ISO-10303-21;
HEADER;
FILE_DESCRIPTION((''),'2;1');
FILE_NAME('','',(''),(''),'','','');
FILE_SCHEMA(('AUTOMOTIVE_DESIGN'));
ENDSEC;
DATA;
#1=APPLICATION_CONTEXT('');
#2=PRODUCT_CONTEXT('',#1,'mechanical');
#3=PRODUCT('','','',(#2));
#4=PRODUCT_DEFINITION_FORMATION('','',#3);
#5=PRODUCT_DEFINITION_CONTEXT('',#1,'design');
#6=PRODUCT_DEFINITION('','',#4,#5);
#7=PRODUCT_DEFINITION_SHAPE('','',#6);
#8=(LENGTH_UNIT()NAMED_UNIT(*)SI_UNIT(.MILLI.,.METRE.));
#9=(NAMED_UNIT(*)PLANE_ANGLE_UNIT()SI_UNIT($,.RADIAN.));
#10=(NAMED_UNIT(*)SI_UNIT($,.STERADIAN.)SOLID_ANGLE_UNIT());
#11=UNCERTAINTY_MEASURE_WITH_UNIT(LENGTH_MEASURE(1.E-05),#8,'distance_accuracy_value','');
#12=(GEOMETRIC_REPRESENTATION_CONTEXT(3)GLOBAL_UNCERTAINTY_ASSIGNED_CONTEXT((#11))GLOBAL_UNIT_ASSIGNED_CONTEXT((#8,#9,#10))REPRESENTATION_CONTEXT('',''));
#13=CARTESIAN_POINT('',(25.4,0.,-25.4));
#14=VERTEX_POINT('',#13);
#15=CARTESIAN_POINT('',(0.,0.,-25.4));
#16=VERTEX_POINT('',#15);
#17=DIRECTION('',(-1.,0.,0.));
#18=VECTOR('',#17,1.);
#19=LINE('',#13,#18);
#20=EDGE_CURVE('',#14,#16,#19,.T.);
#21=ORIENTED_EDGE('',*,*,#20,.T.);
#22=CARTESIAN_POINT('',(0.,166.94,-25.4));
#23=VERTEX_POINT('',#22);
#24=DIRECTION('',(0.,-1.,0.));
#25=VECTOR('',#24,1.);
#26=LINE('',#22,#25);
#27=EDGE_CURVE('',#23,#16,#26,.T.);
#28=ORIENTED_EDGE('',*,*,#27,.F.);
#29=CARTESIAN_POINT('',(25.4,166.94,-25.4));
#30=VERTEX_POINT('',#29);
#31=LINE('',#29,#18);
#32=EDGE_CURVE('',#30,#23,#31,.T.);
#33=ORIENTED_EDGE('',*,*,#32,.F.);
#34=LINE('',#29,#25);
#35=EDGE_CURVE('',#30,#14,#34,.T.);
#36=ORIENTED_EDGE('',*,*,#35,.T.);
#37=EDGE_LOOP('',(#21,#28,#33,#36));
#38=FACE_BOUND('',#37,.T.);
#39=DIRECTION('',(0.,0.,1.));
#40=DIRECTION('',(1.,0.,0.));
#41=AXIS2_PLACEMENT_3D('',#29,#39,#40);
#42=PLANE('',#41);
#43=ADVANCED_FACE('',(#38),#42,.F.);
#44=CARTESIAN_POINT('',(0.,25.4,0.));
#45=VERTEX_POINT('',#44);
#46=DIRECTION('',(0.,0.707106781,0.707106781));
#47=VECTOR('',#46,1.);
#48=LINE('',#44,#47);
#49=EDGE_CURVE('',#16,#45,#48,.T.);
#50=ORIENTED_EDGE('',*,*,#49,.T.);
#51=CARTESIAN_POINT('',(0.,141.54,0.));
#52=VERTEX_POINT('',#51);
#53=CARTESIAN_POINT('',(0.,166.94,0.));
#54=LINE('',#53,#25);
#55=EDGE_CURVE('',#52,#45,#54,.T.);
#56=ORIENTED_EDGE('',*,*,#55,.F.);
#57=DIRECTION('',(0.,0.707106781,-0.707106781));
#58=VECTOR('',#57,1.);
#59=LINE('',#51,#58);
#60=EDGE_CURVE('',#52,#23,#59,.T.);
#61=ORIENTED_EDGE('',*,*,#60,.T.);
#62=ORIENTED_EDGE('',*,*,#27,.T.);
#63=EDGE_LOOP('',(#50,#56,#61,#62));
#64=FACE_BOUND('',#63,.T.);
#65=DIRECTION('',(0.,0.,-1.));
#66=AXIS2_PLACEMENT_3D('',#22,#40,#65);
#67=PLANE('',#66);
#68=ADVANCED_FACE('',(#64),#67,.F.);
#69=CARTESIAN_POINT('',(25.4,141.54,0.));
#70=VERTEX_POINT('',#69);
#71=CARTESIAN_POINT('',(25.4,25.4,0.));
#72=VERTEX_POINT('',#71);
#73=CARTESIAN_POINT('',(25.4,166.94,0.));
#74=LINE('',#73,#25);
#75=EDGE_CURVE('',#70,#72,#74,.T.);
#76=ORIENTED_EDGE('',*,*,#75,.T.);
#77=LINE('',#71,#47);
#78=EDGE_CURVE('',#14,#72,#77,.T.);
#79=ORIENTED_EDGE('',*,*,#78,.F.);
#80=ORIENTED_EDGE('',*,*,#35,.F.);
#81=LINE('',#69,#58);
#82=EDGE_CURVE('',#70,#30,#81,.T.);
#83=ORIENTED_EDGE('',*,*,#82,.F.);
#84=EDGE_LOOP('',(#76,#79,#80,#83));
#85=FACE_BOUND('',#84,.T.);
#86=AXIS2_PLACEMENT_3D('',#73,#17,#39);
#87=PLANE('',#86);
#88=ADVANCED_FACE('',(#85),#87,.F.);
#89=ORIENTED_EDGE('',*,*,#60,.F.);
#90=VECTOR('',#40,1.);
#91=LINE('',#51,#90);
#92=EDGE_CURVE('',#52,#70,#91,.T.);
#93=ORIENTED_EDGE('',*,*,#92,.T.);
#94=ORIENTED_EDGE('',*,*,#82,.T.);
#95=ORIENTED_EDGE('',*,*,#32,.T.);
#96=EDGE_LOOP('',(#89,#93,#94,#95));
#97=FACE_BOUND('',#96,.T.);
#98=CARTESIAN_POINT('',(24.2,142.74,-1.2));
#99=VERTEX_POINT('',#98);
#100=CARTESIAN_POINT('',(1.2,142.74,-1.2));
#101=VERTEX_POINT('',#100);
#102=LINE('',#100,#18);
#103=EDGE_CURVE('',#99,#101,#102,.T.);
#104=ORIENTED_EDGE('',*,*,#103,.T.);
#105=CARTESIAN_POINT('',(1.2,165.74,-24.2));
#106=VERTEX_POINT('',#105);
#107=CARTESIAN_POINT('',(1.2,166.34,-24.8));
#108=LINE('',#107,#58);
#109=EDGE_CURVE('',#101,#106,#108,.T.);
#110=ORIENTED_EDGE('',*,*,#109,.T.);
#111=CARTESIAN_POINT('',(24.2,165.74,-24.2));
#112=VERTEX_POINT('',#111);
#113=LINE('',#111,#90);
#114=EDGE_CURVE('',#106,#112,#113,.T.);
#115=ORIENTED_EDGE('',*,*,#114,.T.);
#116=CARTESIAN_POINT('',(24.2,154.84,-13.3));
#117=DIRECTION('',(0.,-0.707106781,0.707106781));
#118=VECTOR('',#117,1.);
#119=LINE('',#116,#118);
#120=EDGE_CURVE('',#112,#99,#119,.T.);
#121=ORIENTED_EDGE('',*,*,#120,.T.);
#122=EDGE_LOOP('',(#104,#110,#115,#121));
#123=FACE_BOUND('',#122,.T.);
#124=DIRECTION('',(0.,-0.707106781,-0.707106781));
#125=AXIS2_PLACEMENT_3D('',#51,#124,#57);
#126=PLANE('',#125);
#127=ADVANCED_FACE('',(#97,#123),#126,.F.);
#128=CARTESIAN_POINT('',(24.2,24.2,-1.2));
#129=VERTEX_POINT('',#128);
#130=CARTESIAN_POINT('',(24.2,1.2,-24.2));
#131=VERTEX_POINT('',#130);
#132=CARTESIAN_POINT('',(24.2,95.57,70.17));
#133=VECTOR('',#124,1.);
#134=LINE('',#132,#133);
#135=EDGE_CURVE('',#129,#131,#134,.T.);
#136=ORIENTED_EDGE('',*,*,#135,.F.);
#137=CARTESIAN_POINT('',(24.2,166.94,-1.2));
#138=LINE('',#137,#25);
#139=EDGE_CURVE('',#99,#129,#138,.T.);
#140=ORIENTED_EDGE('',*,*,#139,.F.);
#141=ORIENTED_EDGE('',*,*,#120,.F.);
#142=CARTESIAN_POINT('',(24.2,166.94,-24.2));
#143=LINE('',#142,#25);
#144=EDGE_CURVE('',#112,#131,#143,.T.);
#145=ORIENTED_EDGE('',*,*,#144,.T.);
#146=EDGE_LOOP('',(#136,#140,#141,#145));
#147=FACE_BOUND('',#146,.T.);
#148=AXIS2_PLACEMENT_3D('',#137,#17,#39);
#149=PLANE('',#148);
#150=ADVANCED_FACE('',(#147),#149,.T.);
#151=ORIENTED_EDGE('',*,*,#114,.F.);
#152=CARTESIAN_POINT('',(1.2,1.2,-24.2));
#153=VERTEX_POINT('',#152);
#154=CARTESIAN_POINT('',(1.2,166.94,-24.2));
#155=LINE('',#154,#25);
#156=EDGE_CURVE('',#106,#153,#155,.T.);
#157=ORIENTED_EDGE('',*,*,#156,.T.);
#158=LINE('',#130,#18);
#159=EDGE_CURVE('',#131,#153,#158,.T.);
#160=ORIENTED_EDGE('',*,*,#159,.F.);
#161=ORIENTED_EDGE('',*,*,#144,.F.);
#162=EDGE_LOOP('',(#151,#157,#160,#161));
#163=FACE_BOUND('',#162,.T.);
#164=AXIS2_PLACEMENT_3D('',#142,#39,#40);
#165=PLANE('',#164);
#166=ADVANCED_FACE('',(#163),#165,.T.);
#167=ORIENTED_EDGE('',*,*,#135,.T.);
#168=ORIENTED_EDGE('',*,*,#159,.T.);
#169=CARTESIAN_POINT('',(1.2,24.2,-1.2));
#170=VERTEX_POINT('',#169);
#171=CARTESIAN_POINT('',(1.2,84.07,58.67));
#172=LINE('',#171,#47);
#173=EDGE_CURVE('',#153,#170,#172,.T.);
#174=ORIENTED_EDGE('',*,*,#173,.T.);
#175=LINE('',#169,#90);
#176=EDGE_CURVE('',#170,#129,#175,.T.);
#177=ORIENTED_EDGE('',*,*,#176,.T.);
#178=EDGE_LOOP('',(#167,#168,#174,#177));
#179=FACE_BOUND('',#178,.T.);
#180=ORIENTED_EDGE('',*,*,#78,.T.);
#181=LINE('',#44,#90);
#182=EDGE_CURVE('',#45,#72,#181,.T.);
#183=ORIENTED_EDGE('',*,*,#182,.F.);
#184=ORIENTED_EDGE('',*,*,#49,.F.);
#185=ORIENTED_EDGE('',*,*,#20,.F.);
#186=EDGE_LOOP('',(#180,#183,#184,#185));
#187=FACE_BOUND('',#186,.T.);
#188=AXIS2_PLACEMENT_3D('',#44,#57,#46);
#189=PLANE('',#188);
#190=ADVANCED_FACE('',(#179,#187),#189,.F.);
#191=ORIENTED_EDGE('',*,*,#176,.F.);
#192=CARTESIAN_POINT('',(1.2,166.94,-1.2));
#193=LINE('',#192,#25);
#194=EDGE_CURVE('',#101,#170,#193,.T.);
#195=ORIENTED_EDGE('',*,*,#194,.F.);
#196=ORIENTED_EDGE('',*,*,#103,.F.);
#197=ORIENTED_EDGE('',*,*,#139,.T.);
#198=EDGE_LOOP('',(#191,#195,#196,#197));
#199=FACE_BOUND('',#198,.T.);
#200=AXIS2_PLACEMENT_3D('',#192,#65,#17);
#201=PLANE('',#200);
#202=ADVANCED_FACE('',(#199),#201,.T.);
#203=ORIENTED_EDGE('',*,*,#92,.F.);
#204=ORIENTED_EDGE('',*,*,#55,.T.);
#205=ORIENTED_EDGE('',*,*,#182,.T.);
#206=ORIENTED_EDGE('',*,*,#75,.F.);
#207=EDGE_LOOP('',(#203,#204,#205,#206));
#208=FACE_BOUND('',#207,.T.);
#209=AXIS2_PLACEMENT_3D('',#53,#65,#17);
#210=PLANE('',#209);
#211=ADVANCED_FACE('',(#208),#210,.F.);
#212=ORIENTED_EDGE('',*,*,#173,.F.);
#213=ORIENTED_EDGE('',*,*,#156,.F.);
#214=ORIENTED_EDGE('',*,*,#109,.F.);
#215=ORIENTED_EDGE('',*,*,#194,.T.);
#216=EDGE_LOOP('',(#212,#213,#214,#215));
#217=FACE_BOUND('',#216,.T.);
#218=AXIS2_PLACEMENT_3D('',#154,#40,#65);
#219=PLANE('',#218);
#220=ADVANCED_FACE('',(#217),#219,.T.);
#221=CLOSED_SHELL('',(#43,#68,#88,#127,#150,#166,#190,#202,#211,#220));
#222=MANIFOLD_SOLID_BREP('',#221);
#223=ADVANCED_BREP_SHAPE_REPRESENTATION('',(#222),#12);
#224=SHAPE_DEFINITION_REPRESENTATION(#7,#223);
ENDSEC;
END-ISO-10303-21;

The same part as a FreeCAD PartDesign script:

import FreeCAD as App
import Part
import Sketcher

doc = App.newDocument("Part")
body = doc.addObject("PartDesign::Body", "Body")

# Sketch on XZ plane
sketch1 = body.newObject("Sketcher::SketchObject", "Sketch")
sketch1.AttachmentSupport = (doc.getObject("XZ_Plane"), [""])
sketch1.MapMode = "FlatFace"
sketch1.addGeometry(Part.LineSegment(App.Vector(0, -25.4, 0), App.Vector(0, 0, 0)), False)
sketch1.addGeometry(Part.LineSegment(App.Vector(0, 0, 0), App.Vector(25.4, 0, 0)), False)
sketch1.addGeometry(Part.LineSegment(App.Vector(25.4, 0, 0), App.Vector(25.4, -25.4, 0)), False)
sketch1.addGeometry(Part.LineSegment(App.Vector(25.4, -25.4, 0), App.Vector(0, -25.4, 0)), False)
sketch1.addGeometry(Part.LineSegment(App.Vector(24.2, -1.2, 0), App.Vector(1.2, -1.2, 0)), False)
sketch1.addGeometry(Part.LineSegment(App.Vector(1.2, -1.2, 0), App.Vector(1.2, -24.2, 0)), False)
sketch1.addGeometry(Part.LineSegment(App.Vector(1.2, -24.2, 0), App.Vector(24.2, -24.2, 0)), False)
sketch1.addGeometry(Part.LineSegment(App.Vector(24.2, -24.2, 0), App.Vector(24.2, -1.2, 0)), False)
sketch1.addConstraint(Sketcher.Constraint("Coincident", 0, 2, 1, 1))
sketch1.addConstraint(Sketcher.Constraint("Coincident", 1, 2, 2, 1))
sketch1.addConstraint(Sketcher.Constraint("Coincident", 2, 2, 3, 1))
sketch1.addConstraint(Sketcher.Constraint("Coincident", 3, 2, 0, 1))
sketch1.addConstraint(Sketcher.Constraint("Coincident", 4, 2, 5, 1))
sketch1.addConstraint(Sketcher.Constraint("Coincident", 5, 2, 6, 1))
sketch1.addConstraint(Sketcher.Constraint("Coincident", 6, 2, 7, 1))
sketch1.addConstraint(Sketcher.Constraint("Coincident", 7, 2, 4, 1))
sketch1.addConstraint(Sketcher.Constraint("Vertical", 0))
sketch1.addConstraint(Sketcher.Constraint("Horizontal", 1))
sketch1.addConstraint(Sketcher.Constraint("Vertical", 2))
sketch1.addConstraint(Sketcher.Constraint("Horizontal", 3))
sketch1.addConstraint(Sketcher.Constraint("Horizontal", 4))
sketch1.addConstraint(Sketcher.Constraint("Vertical", 5))
sketch1.addConstraint(Sketcher.Constraint("Horizontal", 6))
sketch1.addConstraint(Sketcher.Constraint("Vertical", 7))
sketch1.addConstraint(Sketcher.Constraint("Coincident", 0, 2, -1, 1))
sketch1.addConstraint(Sketcher.Constraint("Equal", 3, 0))
sketch1.addConstraint(Sketcher.Constraint("Equal", 6, 5))
sketch1.addConstraint(Sketcher.Constraint("DistanceX", 4, 2, 4, 1, 23.0))
sketch1.addConstraint(Sketcher.Constraint("DistanceX", 1, 1, 1, 2, 25.4))
sketch1.addConstraint(Sketcher.Constraint("DistanceX", -1, 1, 4, 2, 1.2))
sketch1.addConstraint(Sketcher.Constraint("DistanceY", 4, 2, -1, 1, 1.2))
pad1 = body.newObject("PartDesign::Pad", "Pad")
pad1.Profile = sketch1
pad1.Length = 166.94
pad1.Reversed = True

# Sketch on YZ plane
sketch2 = body.newObject("Sketcher::SketchObject", "Sketch001")
sketch2.AttachmentSupport = (doc.getObject("YZ_Plane"), [""])
sketch2.MapMode = "FlatFace"
sketch2.AttachmentOffset = App.Placement(App.Vector(0, 0, 25.4), App.Rotation())
sketch2.addGeometry(Part.LineSegment(App.Vector(166.94, -25.4, 0), App.Vector(166.94, 0, 0)), False)
sketch2.addGeometry(Part.LineSegment(App.Vector(166.94, 0, 0), App.Vector(141.54, 0, 0)), False)
sketch2.addGeometry(Part.LineSegment(App.Vector(141.54, 0, 0), App.Vector(166.94, -25.4, 0)), False)
sketch2.addGeometry(Part.LineSegment(App.Vector(25.4, 0, 0), App.Vector(0, 0, 0)), False)
sketch2.addGeometry(Part.LineSegment(App.Vector(0, 0, 0), App.Vector(0, -25.4, 0)), False)
sketch2.addGeometry(Part.LineSegment(App.Vector(0, -25.4, 0), App.Vector(25.4, 0, 0)), False)
sketch2.addConstraint(Sketcher.Constraint("Coincident", 0, 2, 1, 1))
sketch2.addConstraint(Sketcher.Constraint("Coincident", 1, 2, 2, 1))
sketch2.addConstraint(Sketcher.Constraint("Coincident", 2, 2, 0, 1))
sketch2.addConstraint(Sketcher.Constraint("Coincident", 3, 2, 4, 1))
sketch2.addConstraint(Sketcher.Constraint("Coincident", 4, 2, 5, 1))
sketch2.addConstraint(Sketcher.Constraint("Coincident", 5, 2, 3, 1))
sketch2.addConstraint(Sketcher.Constraint("Vertical", 0))
sketch2.addConstraint(Sketcher.Constraint("Horizontal", 1))
sketch2.addConstraint(Sketcher.Constraint("Horizontal", 3))
sketch2.addConstraint(Sketcher.Constraint("Vertical", 4))
sketch2.addConstraint(Sketcher.Constraint("Coincident", 3, 2, -1, 1))
sketch2.addConstraint(Sketcher.Constraint("PointOnObject", 0, 2, -1))
sketch2.addConstraint(Sketcher.Constraint("Perpendicular", 2, 5))
sketch2.addConstraint(Sketcher.Constraint("Horizontal", 2, 2, 4, 2))
sketch2.addConstraint(Sketcher.Constraint("Equal", 1, 3))
sketch2.addConstraint(Sketcher.Constraint("DistanceX", 1, 2, 1, 1, 25.4))
sketch2.addConstraint(Sketcher.Constraint("DistanceX", -1, 1, 0, 2, 166.94))
pocket1 = body.newObject("PartDesign::Pocket", "Pocket")
pocket1.Profile = sketch2
pocket1.Type = "ThroughAll"

doc.recompute()
